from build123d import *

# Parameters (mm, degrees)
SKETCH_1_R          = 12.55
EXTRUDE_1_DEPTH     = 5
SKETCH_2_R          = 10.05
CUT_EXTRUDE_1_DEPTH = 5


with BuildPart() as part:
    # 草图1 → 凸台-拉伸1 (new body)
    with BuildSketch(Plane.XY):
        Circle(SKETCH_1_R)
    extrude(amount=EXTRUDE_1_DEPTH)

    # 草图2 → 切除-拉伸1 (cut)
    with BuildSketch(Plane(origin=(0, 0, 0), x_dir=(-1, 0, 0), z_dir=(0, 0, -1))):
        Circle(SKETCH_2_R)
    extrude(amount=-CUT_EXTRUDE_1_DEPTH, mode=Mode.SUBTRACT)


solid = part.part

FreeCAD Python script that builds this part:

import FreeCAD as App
import Part
import Sketcher

doc = App.newDocument("Part")
body = doc.addObject("PartDesign::Body", "Body")

# Sketch on XY plane
sketch1 = doc.addObject("Sketcher::SketchObject", "Sketch")
body.addObject(sketch1)
sketch1.AttachmentSupport = (doc.XY_Plane, [""])
sketch1.MapMode = "FlatFace"
sketch1.addGeometry(Part.Circle(App.Vector(0, 0, 0), App.Vector(0, 0, 1), 13), False)
sketch1.addConstraint(Sketcher.Constraint("Coincident", 0, 3, -1, 1))
sketch1.addConstraint(Sketcher.Constraint("Diameter", 0, 25.1))
pad1 = doc.addObject("PartDesign::Pad", "Pad")
body.addObject(pad1)
pad1.Profile = sketch1
pad1.Length = 5

# Sketch on XY plane
sketch2 = doc.addObject("Sketcher::SketchObject", "Sketch001")
body.addObject(sketch2)
sketch2.AttachmentSupport = (doc.XY_Plane, [""])
sketch2.MapMode = "FlatFace"
sketch2.addGeometry(Part.Circle(App.Vector(0, 0, 0), App.Vector(0, 0, 1), 10), False)
sketch2.addConstraint(Sketcher.Constraint("Coincident", 0, 3, -1, 1))
sketch2.addConstraint(Sketcher.Constraint("Diameter", 0, 20.1))
pocket1 = doc.addObject("PartDesign::Pocket", "Pocket")
body.addObject(pocket1)
pocket1.Profile = sketch2
pocket1.Length = 5
pocket1.Reversed = True

doc.recompute()
